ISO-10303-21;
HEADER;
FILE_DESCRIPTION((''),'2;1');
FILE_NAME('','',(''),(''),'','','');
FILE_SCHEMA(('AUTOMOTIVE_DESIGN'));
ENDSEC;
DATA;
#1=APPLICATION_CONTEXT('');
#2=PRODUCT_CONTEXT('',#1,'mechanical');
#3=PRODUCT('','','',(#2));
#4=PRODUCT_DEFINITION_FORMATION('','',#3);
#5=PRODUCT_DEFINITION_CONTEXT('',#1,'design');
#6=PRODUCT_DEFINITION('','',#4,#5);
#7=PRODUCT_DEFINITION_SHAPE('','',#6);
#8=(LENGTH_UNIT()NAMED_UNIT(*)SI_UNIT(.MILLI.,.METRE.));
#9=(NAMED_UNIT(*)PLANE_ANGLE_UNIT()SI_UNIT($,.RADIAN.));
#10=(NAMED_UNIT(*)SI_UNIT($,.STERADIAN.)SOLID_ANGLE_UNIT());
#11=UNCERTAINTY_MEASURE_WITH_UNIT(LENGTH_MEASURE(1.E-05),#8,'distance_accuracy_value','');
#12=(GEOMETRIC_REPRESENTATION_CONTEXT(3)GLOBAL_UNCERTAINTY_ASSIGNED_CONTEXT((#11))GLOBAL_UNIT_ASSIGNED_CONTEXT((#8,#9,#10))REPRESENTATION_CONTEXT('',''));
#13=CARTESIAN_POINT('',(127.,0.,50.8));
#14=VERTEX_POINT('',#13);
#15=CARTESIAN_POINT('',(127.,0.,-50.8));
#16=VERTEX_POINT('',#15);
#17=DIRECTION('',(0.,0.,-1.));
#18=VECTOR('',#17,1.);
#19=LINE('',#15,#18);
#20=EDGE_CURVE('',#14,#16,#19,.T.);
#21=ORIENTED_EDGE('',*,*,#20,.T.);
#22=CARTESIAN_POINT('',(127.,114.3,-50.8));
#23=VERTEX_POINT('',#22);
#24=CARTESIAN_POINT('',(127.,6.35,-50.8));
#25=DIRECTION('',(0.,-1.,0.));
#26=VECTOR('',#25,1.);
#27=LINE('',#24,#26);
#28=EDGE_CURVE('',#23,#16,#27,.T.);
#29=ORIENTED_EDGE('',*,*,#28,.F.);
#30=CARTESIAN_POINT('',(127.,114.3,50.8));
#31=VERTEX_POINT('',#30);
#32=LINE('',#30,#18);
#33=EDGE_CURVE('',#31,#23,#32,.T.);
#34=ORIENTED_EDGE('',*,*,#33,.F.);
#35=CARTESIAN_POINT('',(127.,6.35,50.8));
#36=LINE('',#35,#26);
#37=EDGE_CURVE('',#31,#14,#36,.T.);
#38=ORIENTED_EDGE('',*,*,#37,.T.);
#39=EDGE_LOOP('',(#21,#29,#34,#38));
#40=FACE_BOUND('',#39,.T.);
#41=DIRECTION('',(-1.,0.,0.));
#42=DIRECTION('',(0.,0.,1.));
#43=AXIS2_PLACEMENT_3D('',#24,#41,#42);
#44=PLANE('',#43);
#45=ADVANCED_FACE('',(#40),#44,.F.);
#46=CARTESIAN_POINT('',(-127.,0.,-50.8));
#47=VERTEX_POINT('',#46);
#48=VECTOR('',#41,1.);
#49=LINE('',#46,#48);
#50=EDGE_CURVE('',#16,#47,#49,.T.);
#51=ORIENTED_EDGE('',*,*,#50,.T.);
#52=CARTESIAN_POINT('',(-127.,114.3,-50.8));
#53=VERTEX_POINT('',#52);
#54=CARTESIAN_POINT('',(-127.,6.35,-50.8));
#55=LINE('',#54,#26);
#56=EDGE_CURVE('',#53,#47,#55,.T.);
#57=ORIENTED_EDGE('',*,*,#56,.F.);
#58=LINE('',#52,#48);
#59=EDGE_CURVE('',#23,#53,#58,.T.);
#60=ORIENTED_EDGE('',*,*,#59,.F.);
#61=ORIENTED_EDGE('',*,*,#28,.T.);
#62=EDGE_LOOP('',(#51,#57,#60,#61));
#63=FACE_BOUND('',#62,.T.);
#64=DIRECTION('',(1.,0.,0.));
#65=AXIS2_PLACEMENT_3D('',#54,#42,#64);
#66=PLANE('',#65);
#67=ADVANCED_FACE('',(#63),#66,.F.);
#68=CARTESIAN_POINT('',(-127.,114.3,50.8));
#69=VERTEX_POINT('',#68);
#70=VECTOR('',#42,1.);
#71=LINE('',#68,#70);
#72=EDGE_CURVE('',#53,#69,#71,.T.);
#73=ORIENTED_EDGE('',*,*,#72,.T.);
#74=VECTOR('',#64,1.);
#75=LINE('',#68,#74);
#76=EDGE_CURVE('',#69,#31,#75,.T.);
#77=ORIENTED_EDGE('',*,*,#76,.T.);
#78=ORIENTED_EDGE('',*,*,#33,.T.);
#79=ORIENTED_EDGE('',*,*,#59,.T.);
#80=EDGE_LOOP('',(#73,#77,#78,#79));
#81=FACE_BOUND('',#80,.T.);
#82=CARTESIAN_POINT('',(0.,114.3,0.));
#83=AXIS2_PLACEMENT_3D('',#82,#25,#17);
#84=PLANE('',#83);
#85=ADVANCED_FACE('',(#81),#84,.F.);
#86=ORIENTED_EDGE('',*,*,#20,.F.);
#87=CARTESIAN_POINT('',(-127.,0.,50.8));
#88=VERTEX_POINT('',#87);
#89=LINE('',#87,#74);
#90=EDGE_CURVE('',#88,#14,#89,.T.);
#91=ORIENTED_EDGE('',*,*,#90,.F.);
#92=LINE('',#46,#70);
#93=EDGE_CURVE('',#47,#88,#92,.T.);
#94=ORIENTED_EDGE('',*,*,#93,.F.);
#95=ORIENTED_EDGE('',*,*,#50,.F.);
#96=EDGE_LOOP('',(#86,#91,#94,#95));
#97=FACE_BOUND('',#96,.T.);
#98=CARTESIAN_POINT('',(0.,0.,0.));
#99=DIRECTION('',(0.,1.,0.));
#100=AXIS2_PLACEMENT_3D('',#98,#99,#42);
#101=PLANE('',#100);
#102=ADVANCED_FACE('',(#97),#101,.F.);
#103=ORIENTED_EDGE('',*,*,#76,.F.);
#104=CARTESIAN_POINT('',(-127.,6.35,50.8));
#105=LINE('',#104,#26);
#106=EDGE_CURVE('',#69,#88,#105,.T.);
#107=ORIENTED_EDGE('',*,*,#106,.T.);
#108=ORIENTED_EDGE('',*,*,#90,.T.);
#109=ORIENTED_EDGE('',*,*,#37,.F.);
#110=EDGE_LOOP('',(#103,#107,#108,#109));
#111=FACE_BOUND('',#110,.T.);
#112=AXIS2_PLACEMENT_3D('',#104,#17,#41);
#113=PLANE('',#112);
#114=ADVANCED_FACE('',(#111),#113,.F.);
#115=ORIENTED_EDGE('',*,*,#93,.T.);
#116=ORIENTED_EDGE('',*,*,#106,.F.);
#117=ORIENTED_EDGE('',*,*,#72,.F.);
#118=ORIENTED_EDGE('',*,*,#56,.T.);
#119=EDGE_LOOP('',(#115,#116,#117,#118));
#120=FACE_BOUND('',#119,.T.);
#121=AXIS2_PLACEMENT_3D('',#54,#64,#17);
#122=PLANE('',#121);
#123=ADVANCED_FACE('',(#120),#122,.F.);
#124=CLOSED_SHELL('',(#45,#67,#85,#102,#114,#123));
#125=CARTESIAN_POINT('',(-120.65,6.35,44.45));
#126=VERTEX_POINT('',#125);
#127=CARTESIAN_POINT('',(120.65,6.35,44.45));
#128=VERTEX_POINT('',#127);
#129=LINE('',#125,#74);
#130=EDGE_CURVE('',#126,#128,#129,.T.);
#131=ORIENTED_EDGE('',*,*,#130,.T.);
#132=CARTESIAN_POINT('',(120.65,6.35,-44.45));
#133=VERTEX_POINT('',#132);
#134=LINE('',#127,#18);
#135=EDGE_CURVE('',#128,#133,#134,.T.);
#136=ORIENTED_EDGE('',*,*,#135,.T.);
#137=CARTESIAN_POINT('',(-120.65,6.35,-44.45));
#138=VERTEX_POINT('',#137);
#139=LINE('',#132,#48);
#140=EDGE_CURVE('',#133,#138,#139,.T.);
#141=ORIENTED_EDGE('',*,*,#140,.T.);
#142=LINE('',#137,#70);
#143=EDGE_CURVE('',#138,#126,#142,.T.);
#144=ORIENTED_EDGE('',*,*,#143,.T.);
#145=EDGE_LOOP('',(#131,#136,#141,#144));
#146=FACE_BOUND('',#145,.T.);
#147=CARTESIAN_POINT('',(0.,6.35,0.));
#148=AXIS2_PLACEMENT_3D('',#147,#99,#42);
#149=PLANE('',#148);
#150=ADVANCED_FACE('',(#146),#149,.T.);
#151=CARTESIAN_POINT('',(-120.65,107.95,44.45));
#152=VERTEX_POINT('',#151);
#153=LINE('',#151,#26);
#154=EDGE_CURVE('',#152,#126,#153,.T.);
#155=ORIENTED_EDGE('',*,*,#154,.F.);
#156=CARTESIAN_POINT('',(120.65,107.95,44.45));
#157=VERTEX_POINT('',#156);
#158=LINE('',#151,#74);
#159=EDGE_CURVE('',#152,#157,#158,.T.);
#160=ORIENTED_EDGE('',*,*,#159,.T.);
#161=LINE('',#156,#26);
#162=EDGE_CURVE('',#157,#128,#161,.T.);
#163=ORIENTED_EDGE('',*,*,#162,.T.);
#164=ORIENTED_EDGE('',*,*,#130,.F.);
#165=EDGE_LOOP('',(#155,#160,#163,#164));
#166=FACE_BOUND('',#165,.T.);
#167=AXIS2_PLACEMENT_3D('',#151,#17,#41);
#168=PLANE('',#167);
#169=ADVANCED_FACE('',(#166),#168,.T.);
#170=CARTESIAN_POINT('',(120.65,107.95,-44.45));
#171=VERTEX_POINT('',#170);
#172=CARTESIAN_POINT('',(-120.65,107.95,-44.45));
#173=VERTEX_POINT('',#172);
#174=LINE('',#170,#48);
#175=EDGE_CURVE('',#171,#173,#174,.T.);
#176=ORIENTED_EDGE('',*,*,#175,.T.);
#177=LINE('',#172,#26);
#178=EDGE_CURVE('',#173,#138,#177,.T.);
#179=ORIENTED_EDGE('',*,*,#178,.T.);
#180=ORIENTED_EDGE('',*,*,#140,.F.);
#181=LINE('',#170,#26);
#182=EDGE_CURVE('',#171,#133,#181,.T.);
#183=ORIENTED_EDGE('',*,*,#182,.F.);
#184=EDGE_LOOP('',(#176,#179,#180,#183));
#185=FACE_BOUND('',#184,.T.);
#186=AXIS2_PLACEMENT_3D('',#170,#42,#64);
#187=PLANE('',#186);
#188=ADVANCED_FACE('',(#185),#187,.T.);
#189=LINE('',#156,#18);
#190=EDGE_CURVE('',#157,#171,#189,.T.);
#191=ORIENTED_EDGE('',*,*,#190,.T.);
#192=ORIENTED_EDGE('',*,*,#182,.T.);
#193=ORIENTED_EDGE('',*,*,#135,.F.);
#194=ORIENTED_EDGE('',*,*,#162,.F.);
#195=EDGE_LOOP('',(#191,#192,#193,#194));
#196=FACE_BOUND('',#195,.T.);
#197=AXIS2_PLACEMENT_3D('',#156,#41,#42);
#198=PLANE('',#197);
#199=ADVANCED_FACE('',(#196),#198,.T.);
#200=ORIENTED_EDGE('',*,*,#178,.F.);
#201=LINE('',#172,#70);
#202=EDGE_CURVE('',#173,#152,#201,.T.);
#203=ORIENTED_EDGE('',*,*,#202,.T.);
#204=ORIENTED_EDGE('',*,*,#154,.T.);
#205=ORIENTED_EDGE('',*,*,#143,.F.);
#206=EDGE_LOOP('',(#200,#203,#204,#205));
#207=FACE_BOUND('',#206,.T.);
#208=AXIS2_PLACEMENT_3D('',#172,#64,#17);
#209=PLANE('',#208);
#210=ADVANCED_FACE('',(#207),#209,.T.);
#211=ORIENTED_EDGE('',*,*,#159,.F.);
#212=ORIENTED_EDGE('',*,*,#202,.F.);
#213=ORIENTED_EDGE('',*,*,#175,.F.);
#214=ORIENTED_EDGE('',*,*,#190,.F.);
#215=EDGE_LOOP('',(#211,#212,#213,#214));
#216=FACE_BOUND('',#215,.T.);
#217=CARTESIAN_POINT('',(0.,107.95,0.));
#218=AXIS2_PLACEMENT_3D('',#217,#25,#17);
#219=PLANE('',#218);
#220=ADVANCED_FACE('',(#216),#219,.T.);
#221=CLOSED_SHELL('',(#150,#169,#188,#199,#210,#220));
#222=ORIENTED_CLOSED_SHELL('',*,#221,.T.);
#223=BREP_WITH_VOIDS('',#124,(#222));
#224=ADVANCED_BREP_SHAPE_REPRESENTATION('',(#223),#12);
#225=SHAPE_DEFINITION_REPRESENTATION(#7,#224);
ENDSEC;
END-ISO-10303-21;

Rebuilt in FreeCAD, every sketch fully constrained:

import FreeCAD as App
import Part
import Sketcher

V = App.Vector
Q = App.Units.Quantity


def add_polygon(sketch, points):
    """Adds a closed chain of lines whose ends are joined by coincident constraints."""
    first, n = sketch.GeometryCount, len(points)
    for a, b in zip(points, points[1:] + points[:1]):
        sketch.addGeometry(Part.LineSegment(App.Vector(*a, 0), App.Vector(*b, 0)), False)
    for i in range(n):
        sketch.addConstraint(Sketcher.Constraint("Coincident", first + i, 2, first + (i + 1) % n, 1))

doc = App.newDocument("Part")
body = doc.addObject("PartDesign::Body", "Body")

sketch1 = body.newObject("Sketcher::SketchObject", "Sketch")
sketch1.AttachmentSupport = (doc.getObject("XZ_Plane"), [""])
sketch1.MapMode = "FlatFace"
add_polygon(sketch1, [(-127, -50.8), (-127, 50.8), (127, 50.8), (127, -50.8)])
sketch1.addConstraint(Sketcher.Constraint("Vertical", 0))
sketch1.addConstraint(Sketcher.Constraint("Horizontal", 1))
sketch1.addConstraint(Sketcher.Constraint("Vertical", 2))
sketch1.addConstraint(Sketcher.Constraint("Horizontal", 3))
sketch1.addConstraint(Sketcher.Constraint("Symmetric", 0, 2, 2, 2, -1, 1))
sketch1.addConstraint(Sketcher.Constraint("DistanceX", 1, 1, 1, 2, Q("10 in")))
sketch1.addConstraint(Sketcher.Constraint("DistanceY", 0, 1, 0, 2, Q("4 in")))
pad1 = body.newObject("PartDesign::Pad", "Pad")
pad1.Profile = sketch1
pad1.Length = Q("0.25 in")
pad1.Reversed = True

sketch2 = body.newObject("Sketcher::SketchObject", "Sketch001")
sketch2.AttachmentSupport = (doc.getObject("XZ_Plane"), [""])
sketch2.MapMode = "FlatFace"
sketch2.AttachmentOffset = App.Placement(V(0, 0, -0.25 * 25.4), App.Rotation())
add_polygon(sketch2, [(-127, -50.8), (-127, 50.8), (127, 50.8), (127, -50.8)])
add_polygon(sketch2, [(120.65, 44.45), (-120.65, 44.45), (-120.65, -44.45), (120.65, -44.45)])
sketch2.addConstraint(Sketcher.Constraint("Vertical", 0))
sketch2.addConstraint(Sketcher.Constraint("Horizontal", 1))
sketch2.addConstraint(Sketcher.Constraint("Vertical", 2))
sketch2.addConstraint(Sketcher.Constraint("Horizontal", 3))
sketch2.addConstraint(Sketcher.Constraint("Horizontal", 4))
sketch2.addConstraint(Sketcher.Constraint("Vertical", 5))
sketch2.addConstraint(Sketcher.Constraint("Horizontal", 6))
sketch2.addConstraint(Sketcher.Constraint("Vertical", 7))
sketch2.addConstraint(Sketcher.Constraint("Symmetric", 0, 2, 2, 2, -1, 1))
sketch2.addConstraint(Sketcher.Constraint("Symmetric", 4, 2, 6, 2, -1, 1))
sketch2.addConstraint(Sketcher.Constraint("DistanceX", 1, 1, 1, 2, Q("10 in")))
sketch2.addConstraint(Sketcher.Constraint("DistanceY", 0, 1, 0, 2, Q("4 in")))
sketch2.addConstraint(Sketcher.Constraint("DistanceX", 4, 2, 4, 1, Q("9.5 in")))
sketch2.addConstraint(Sketcher.Constraint("DistanceY", 5, 2, 5, 1, Q("3.5 in")))
pad2 = body.newObject("PartDesign::Pad", "Pad001")
pad2.Profile = sketch2
pad2.Length = Q("4 in")
pad2.Reversed = True

sketch3 = body.newObject("Sketcher::SketchObject", "Sketch002")
sketch3.AttachmentSupport = (doc.getObject("XZ_Plane"), [""])
sketch3.MapMode = "FlatFace"
sketch3.AttachmentOffset = App.Placement(V(0, 0, -4.25 * 25.4), App.Rotation())
add_polygon(sketch3, [(-127, -50.8), (-127, 50.8), (127, 50.8), (127, -50.8)])
sketch3.addConstraint(Sketcher.Constraint("Vertical", 0))
sketch3.addConstraint(Sketcher.Constraint("Horizontal", 1))
sketch3.addConstraint(Sketcher.Constraint("Vertical", 2))
sketch3.addConstraint(Sketcher.Constraint("Horizontal", 3))
sketch3.addConstraint(Sketcher.Constraint("Symmetric", 0, 2, 2, 2, -1, 1))
sketch3.addConstraint(Sketcher.Constraint("DistanceX", 1, 1, 1, 2, Q("10 in")))
sketch3.addConstraint(Sketcher.Constraint("DistanceY", 0, 1, 0, 2, Q("4 in")))
pad3 = body.newObject("PartDesign::Pad", "Pad002")
pad3.Profile = sketch3
pad3.Length = Q("0.25 in")
pad3.Reversed = True

doc.recompute()
